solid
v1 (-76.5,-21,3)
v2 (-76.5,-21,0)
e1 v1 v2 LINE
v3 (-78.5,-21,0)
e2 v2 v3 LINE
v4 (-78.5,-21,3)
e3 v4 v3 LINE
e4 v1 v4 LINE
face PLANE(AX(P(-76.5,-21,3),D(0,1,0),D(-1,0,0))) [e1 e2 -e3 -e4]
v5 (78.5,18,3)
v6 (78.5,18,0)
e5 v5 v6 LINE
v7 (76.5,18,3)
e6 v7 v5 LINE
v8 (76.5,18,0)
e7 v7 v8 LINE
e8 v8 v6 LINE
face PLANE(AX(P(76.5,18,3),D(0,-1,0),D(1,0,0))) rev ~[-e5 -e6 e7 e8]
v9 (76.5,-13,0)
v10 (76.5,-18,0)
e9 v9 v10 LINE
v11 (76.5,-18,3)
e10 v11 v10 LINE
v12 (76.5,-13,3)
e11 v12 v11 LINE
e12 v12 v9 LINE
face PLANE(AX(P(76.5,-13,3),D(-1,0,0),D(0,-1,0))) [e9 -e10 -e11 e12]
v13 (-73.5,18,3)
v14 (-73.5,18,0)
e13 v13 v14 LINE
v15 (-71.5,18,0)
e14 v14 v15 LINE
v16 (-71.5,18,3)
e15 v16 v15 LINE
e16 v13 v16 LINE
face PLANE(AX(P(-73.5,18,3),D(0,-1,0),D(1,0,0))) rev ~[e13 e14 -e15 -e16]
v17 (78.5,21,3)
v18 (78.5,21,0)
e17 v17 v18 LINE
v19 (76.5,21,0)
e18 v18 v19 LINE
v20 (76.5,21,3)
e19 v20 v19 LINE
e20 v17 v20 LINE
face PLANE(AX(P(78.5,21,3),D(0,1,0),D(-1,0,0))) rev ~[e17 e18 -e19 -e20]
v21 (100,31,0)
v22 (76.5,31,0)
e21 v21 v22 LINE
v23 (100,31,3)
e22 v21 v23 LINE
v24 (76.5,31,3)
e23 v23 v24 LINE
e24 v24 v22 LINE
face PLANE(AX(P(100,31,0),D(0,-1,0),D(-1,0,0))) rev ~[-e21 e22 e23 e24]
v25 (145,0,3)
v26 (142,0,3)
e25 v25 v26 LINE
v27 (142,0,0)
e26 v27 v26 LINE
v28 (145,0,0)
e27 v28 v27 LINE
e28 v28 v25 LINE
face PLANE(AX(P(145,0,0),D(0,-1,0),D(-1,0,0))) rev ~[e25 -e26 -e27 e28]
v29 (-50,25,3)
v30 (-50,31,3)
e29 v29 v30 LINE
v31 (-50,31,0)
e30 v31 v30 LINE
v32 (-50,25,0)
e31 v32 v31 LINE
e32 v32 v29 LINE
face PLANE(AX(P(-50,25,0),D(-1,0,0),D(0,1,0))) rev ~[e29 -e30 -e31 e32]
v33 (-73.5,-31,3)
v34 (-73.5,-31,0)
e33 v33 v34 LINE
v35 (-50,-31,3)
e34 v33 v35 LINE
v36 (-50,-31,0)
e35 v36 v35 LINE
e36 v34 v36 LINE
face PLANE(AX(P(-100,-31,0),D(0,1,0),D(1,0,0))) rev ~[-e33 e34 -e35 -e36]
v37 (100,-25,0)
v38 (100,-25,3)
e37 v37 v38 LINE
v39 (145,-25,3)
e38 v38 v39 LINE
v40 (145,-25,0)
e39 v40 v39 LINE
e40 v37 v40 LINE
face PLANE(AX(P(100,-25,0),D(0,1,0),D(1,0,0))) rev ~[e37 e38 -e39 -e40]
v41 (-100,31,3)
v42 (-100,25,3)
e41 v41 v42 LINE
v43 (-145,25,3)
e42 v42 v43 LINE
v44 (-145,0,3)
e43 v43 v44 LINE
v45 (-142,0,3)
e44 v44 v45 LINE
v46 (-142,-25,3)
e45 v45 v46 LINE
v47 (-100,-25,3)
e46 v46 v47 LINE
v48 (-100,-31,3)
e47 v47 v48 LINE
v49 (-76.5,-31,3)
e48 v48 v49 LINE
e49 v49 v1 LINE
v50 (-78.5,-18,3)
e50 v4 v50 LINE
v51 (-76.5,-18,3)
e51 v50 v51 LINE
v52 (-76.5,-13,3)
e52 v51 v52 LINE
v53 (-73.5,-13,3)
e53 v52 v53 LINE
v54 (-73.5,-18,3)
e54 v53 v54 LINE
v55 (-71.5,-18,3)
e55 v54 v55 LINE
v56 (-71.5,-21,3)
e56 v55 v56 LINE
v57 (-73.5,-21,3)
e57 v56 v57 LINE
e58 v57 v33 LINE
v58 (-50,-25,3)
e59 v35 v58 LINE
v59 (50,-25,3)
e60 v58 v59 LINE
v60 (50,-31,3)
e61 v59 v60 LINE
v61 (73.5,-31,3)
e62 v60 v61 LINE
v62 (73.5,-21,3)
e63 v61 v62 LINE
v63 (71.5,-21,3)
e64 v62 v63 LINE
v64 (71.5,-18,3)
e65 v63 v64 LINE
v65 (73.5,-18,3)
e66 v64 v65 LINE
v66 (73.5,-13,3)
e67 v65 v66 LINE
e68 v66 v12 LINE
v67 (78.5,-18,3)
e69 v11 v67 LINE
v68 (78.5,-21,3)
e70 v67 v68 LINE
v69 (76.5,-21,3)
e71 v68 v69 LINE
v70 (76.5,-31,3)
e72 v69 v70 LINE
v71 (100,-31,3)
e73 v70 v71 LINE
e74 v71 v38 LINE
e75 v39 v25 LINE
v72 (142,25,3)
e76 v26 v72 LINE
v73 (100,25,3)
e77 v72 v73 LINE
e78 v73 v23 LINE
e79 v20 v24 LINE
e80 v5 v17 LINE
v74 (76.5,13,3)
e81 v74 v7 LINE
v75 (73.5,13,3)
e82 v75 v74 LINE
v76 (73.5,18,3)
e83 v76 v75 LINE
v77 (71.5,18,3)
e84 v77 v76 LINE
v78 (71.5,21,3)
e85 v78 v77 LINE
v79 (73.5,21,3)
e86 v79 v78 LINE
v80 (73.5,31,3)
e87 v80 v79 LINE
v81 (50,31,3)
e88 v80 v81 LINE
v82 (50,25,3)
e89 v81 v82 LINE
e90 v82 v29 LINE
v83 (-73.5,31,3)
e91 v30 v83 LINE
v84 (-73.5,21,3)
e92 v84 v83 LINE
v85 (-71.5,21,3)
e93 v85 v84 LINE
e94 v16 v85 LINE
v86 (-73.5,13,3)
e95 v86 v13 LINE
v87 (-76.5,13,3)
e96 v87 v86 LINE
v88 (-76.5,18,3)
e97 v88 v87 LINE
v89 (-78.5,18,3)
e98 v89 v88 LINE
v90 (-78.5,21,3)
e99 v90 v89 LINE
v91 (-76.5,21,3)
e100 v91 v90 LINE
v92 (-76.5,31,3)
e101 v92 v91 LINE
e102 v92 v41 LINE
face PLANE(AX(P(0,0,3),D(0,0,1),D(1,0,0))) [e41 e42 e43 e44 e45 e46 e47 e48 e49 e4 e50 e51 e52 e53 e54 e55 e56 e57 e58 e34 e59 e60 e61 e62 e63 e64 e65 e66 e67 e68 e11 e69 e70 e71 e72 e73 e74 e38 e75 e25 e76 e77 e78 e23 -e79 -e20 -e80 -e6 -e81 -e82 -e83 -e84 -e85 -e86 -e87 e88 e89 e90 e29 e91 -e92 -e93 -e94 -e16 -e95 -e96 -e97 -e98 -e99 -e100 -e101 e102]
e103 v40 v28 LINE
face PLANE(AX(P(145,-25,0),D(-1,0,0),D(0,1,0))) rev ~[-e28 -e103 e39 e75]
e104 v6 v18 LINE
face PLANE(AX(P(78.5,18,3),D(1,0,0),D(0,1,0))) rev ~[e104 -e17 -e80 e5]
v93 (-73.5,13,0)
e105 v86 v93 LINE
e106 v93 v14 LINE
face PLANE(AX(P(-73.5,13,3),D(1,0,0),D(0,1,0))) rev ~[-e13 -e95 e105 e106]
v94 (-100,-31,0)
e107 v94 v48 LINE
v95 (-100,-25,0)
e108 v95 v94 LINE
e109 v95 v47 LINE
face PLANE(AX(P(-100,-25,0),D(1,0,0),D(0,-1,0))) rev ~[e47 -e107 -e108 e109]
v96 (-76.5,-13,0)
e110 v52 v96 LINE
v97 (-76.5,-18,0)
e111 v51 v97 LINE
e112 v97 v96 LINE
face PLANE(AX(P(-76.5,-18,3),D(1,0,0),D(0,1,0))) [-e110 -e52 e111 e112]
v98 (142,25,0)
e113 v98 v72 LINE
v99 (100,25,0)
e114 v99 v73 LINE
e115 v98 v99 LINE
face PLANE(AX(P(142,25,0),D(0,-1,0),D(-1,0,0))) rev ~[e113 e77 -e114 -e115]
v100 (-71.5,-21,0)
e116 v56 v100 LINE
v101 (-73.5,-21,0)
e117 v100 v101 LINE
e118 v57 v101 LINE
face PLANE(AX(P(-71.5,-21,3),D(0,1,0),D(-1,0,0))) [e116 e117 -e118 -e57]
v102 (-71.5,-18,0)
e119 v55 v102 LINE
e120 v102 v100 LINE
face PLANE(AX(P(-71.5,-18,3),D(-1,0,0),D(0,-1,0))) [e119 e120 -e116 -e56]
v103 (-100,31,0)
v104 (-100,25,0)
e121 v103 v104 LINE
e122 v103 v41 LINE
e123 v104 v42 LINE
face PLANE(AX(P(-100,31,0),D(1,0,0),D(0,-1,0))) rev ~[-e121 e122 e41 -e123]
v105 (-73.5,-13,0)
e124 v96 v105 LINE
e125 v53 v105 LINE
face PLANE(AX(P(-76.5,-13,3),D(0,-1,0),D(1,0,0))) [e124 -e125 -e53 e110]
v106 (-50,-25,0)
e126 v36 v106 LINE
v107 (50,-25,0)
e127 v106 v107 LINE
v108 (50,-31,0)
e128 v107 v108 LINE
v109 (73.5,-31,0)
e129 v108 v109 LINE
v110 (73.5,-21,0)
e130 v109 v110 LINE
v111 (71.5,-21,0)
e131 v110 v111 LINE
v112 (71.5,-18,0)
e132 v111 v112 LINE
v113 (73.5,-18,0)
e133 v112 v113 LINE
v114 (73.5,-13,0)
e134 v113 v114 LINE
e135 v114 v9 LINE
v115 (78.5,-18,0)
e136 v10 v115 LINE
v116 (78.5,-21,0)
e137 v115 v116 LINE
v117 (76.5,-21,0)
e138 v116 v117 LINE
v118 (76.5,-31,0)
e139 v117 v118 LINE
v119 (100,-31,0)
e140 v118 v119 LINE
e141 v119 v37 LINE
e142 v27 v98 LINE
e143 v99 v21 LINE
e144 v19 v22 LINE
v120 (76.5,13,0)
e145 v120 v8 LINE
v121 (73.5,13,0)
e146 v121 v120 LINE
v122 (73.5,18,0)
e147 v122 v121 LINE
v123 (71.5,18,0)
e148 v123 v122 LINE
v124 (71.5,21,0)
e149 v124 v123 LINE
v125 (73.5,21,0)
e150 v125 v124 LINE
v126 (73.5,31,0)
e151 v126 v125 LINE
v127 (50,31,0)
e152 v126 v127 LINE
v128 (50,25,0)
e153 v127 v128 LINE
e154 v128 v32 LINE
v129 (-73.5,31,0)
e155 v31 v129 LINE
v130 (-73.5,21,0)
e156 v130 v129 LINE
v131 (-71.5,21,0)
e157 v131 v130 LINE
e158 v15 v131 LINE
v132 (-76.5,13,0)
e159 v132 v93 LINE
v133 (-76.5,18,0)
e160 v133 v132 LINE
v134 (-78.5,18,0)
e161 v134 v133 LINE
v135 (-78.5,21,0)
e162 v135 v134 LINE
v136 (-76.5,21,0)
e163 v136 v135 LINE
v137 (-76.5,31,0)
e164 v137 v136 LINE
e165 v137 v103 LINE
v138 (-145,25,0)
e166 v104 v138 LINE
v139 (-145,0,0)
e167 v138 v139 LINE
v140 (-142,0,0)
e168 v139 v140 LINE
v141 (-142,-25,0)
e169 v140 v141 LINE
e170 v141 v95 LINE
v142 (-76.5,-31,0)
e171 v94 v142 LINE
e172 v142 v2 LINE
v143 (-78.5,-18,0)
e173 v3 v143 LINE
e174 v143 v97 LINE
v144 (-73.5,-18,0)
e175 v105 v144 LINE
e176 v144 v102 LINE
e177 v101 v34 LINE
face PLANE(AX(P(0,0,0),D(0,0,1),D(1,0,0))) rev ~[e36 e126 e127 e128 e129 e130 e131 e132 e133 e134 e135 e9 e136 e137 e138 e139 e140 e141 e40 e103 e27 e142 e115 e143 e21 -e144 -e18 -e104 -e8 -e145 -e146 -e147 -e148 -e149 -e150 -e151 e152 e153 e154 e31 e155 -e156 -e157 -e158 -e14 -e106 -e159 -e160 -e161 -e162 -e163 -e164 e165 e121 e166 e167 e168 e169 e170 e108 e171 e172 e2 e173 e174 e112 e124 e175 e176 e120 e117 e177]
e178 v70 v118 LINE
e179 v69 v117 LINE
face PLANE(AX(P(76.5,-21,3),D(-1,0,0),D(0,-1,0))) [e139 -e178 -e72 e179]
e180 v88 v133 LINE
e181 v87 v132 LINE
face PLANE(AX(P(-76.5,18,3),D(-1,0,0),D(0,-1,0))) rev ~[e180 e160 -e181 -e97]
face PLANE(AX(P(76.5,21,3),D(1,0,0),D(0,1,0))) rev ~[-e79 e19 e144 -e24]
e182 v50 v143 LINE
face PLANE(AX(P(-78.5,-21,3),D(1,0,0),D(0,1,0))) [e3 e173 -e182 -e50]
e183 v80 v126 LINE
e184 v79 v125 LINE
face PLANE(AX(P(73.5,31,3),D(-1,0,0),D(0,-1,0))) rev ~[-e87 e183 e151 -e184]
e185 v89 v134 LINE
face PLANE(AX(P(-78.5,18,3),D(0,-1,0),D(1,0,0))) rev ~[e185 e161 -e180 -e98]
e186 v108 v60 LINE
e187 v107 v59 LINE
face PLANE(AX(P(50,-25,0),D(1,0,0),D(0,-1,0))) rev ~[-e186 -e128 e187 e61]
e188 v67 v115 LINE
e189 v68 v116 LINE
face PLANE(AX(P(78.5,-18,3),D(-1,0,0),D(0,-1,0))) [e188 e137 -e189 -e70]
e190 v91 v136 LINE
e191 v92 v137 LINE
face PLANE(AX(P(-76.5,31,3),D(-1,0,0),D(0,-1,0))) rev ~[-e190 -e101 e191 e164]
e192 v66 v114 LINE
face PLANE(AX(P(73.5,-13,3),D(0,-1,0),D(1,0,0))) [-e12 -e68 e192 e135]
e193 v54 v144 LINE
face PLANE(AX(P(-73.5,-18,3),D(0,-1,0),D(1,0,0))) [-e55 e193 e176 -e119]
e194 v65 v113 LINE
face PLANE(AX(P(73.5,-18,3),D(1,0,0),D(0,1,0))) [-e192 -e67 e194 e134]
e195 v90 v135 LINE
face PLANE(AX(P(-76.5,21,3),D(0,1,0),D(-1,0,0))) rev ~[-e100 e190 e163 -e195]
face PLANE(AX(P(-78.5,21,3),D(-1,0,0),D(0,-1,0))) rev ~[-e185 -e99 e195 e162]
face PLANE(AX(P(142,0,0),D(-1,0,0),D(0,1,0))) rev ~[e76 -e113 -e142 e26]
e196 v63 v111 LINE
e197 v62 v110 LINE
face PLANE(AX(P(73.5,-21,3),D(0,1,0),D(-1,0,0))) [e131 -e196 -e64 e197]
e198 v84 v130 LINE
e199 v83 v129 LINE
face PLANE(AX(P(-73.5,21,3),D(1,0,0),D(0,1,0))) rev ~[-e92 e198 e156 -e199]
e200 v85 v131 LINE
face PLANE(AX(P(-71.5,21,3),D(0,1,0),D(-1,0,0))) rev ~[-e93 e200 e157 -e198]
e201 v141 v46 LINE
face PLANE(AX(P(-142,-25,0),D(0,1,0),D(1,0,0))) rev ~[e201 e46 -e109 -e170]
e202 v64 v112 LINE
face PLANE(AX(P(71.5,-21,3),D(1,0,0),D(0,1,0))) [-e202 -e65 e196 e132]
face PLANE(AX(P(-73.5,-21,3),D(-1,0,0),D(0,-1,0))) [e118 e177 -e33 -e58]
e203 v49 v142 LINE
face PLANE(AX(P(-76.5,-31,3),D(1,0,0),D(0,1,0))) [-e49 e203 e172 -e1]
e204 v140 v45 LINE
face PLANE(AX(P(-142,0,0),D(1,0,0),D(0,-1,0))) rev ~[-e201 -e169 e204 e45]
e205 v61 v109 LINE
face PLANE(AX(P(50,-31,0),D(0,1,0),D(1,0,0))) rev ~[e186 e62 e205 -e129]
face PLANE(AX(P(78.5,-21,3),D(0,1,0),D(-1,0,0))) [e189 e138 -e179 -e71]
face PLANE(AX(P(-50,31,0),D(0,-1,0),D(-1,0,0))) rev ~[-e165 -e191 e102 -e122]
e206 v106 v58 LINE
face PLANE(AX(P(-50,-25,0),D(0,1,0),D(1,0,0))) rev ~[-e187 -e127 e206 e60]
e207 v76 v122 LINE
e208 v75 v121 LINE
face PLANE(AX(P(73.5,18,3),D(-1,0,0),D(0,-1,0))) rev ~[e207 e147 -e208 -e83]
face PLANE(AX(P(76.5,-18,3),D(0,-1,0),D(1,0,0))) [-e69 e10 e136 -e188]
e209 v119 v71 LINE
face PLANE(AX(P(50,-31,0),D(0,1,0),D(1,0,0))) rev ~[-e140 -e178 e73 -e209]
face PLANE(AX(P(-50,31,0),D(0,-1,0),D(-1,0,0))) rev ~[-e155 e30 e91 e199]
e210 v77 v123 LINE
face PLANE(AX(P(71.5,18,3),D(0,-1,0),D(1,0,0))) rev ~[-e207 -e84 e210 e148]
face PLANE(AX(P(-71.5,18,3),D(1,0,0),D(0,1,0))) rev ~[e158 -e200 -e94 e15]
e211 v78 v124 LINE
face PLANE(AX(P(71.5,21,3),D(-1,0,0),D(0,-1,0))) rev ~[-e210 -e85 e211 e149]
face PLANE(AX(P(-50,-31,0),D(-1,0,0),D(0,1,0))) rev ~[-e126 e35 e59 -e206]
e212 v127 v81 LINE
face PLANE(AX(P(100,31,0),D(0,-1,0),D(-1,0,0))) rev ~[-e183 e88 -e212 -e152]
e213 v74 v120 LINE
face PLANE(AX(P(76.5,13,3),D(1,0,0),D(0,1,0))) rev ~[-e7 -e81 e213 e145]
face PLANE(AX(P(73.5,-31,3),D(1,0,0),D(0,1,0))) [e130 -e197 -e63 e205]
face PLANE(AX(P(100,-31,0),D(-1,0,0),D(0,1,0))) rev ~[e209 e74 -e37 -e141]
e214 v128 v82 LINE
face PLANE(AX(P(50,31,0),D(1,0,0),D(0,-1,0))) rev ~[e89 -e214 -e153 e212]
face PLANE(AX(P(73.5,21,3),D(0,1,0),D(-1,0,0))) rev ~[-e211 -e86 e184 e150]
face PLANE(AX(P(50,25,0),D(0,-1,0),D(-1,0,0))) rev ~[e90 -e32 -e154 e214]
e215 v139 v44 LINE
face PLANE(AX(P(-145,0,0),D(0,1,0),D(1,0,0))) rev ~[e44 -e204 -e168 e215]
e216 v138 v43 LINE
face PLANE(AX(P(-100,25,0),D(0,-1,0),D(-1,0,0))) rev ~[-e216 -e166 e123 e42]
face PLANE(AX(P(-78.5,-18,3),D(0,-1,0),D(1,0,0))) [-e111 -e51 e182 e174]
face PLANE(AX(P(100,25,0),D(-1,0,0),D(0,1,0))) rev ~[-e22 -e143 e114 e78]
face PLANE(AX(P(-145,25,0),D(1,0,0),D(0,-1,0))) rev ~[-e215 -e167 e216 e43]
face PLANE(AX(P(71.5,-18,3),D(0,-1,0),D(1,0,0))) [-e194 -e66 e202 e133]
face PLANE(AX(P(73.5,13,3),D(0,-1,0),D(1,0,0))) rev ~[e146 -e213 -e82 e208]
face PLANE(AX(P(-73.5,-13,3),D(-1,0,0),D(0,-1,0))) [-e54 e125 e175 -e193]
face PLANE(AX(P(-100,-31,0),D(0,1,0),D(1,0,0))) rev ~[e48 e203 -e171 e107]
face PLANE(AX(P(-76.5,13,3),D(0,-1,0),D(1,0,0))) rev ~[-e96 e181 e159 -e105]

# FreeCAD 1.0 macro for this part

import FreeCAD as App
import Part
import Sketcher

V = App.Vector
Q = App.Units.Quantity


def add_polygon(sketch, points):
    """Adds a closed chain of lines whose ends are joined by coincident constraints."""
    first, n = sketch.GeometryCount, len(points)
    for a, b in zip(points, points[1:] + points[:1]):
        sketch.addGeometry(Part.LineSegment(App.Vector(*a, 0), App.Vector(*b, 0)), False)
    for i in range(n):
        sketch.addConstraint(Sketcher.Constraint("Coincident", first + i, 2, first + (i + 1) % n, 1))

doc = App.newDocument("Part")
params = doc.addObject("Spreadsheet::Sheet", "Params")
for row, (alias, value) in enumerate([
    ("sketch1_width", "3 mm"),
    ("sketch1_width2", "42 mm"),
    ("sketch1_width3", "50 mm"),
    ("sketch1_width4", "100 mm"),
    ("sketch1_height", "25 mm"),
    ("pad1_length", "3 mm"),
    ("sketch2_width", "2 mm"),
    ("sketch2_width2", "3 mm"),
    ("sketch2_height", "10 mm"),
    ("sketch2_height2", "5 mm"),
    ("pocket1_length", "10 mm"),
], start=1):
    params.set(f"A{row}", alias)
    params.set(f"B{row}", "=" + value)
    params.setAlias(f"B{row}", alias)

body = doc.addObject("PartDesign::Body", "Body")

sketch1 = body.newObject("Sketcher::SketchObject", "Sketch")
sketch1.AttachmentSupport = (doc.getObject("XY_Plane"), [""])
sketch1.MapMode = "FlatFace"
add_polygon(sketch1, [(-145, 0), (-142, 0), (-142, -25), (-100, -25), (-100, -31), (-50, -31), (-50, -25), (50, -25), (50, -31), (100, -31), (100, -25), (145, -25), (145, 0), (142, 0), (142, 25), (100, 25), (100, 31), (50, 31), (50, 25), (-50, 25), (-50, 31), (-100, 31), (-100, 25), (-145, 25)])
sketch1.addConstraint([
    Sketcher.Constraint("Horizontal", 0),
    Sketcher.Constraint("Vertical", 1),
    Sketcher.Constraint("Horizontal", 2),
    Sketcher.Constraint("Vertical", 3),
    Sketcher.Constraint("Horizontal", 4),
    Sketcher.Constraint("Vertical", 5),
    Sketcher.Constraint("Horizontal", 6),
    Sketcher.Constraint("Vertical", 7),
    Sketcher.Constraint("Horizontal", 8),
    Sketcher.Constraint("Vertical", 9),
    Sketcher.Constraint("Horizontal", 10),
    Sketcher.Constraint("Vertical", 11),
    Sketcher.Constraint("Horizontal", 12),
    Sketcher.Constraint("Vertical", 13),
    Sketcher.Constraint("Horizontal", 14),
    Sketcher.Constraint("Vertical", 15),
    Sketcher.Constraint("Horizontal", 16),
    Sketcher.Constraint("Vertical", 17),
    Sketcher.Constraint("Horizontal", 18),
    Sketcher.Constraint("Vertical", 19),
    Sketcher.Constraint("Horizontal", 20),
    Sketcher.Constraint("Vertical", 21),
    Sketcher.Constraint("Horizontal", 22),
    Sketcher.Constraint("Vertical", 23),
    Sketcher.Constraint("Symmetric", 0, 2, 12, 2, -1, 1),
    Sketcher.Constraint("Symmetric", 2, 2, 14, 2, -1, 1),
    Sketcher.Constraint("Symmetric", 4, 2, 16, 2, -1, 1),
    Sketcher.Constraint("Symmetric", 6, 2, 18, 2, -1, 1),
    Sketcher.Constraint("Symmetric", 8, 2, 20, 2, -1, 1),
    Sketcher.Constraint("Symmetric", 10, 2, 22, 2, -1, 1),
    Sketcher.Constraint("Symmetric", 4, 2, 7, 2, -2),
    Sketcher.Constraint("Symmetric", 2, 2, 9, 2, -2),
    Sketcher.Constraint("PointOnObject", 0, 2, -1),
    Sketcher.Constraint("Horizontal", 2, 2, 5, 2),
    Sketcher.Constraint("DistanceX", 0, 1, 0, 2, Q("3 mm")),
    Sketcher.Constraint("DistanceX", 2, 1, 2, 2, Q("42 mm")),
    Sketcher.Constraint("DistanceX", 4, 1, 4, 2, Q("50 mm")),
    Sketcher.Constraint("DistanceX", 6, 1, 6, 2, Q("100 mm")),
    Sketcher.Constraint("DistanceY", 1, 2, 1, 1, Q("25 mm")),
    Sketcher.Constraint("DistanceY", 3, 2, 3, 1, Q("6 mm")),
])
sketch1.setExpression("Constraints[58]", "Params.sketch1_width")
sketch1.setExpression("Constraints[59]", "Params.sketch1_width2")
sketch1.setExpression("Constraints[60]", "Params.sketch1_width3")
sketch1.setExpression("Constraints[61]", "Params.sketch1_width4")
sketch1.setExpression("Constraints[62]", "Params.sketch1_height")
pad1 = body.newObject("PartDesign::Pad", "Pad")
pad1.Profile = sketch1
pad1.setExpression("Length", "Params.pad1_length")

sketch2 = body.newObject("Sketcher::SketchObject", "Sketch001")
sketch2.AttachmentSupport = (doc.getObject("XY_Plane"), [""])
sketch2.MapMode = "FlatFace"
sketch2.AttachmentOffset = App.Placement(V(0, 0, 3), App.Rotation())
add_polygon(sketch2, [(-76.5, 31), (-76.5, 21), (-78.5, 21), (-78.5, 18), (-76.5, 18), (-76.5, 13), (-73.5, 13), (-73.5, 18), (-71.5, 18), (-71.5, 21), (-73.5, 21), (-73.5, 31)])
add_polygon(sketch2, [(-76.5, -21), (-76.5, -31), (-73.5, -31), (-73.5, -21), (-71.5, -21), (-71.5, -18), (-73.5, -18), (-73.5, -13), (-76.5, -13), (-76.5, -18), (-78.5, -18), (-78.5, -21)])
add_polygon(sketch2, [(73.5, 31), (73.5, 21), (71.5, 21), (71.5, 18), (73.5, 18), (73.5, 13), (76.5, 13), (76.5, 18), (78.5, 18), (78.5, 21), (76.5, 21), (76.5, 31)])
add_polygon(sketch2, [(73.5, -21), (73.5, -31), (76.5, -31), (76.5, -21), (78.5, -21), (78.5, -18), (76.5, -18), (76.5, -13), (73.5, -13), (73.5, -18), (71.5, -18), (71.5, -21)])
sketch2.addConstraint([
    Sketcher.Constraint("Vertical", 0),
    Sketcher.Constraint("Horizontal", 1),
    Sketcher.Constraint("Vertical", 2),
    Sketcher.Constraint("Horizontal", 3),
    Sketcher.Constraint("Vertical", 4),
    Sketcher.Constraint("Horizontal", 5),
    Sketcher.Constraint("Vertical", 6),
    Sketcher.Constraint("Horizontal", 7),
    Sketcher.Constraint("Vertical", 8),
    Sketcher.Constraint("Horizontal", 9),
    Sketcher.Constraint("Vertical", 10),
    Sketcher.Constraint("Horizontal", 11),
    Sketcher.Constraint("Vertical", 12),
    Sketcher.Constraint("Horizontal", 13),
    Sketcher.Constraint("Vertical", 14),
    Sketcher.Constraint("Horizontal", 15),
    Sketcher.Constraint("Vertical", 16),
    Sketcher.Constraint("Horizontal", 17),
    Sketcher.Constraint("Vertical", 18),
    Sketcher.Constraint("Horizontal", 19),
    Sketcher.Constraint("Vertical", 20),
    Sketcher.Constraint("Horizontal", 21),
    Sketcher.Constraint("Vertical", 22),
    Sketcher.Constraint("Horizontal", 23),
    Sketcher.Constraint("Vertical", 24),
    Sketcher.Constraint("Horizontal", 25),
    Sketcher.Constraint("Vertical", 26),
    Sketcher.Constraint("Horizontal", 27),
    Sketcher.Constraint("Vertical", 28),
    Sketcher.Constraint("Horizontal", 29),
    Sketcher.Constraint("Vertical", 30),
    Sketcher.Constraint("Horizontal", 31),
    Sketcher.Constraint("Vertical", 32),
    Sketcher.Constraint("Horizontal", 33),
    Sketcher.Constraint("Vertical", 34),
    Sketcher.Constraint("Horizontal", 35),
    Sketcher.Constraint("Vertical", 36),
    Sketcher.Constraint("Horizontal", 37),
    Sketcher.Constraint("Vertical", 38),
    Sketcher.Constraint("Horizontal", 39),
    Sketcher.Constraint("Vertical", 40),
    Sketcher.Constraint("Horizontal", 41),
    Sketcher.Constraint("Vertical", 42),
    Sketcher.Constraint("Horizontal", 43),
    Sketcher.Constraint("Vertical", 44),
    Sketcher.Constraint("Horizontal", 45),
    Sketcher.Constraint("Vertical", 46),
    Sketcher.Constraint("Horizontal", 47),
    Sketcher.Constraint("Symmetric", 14, 2, 24, 2, -1, 1),
    Sketcher.Constraint("Symmetric", 16, 2, 26, 2, -1, 1),
    Sketcher.Constraint("Symmetric", 18, 2, 28, 2, -1, 1),
    Sketcher.Constraint("Symmetric", 20, 2, 30, 2, -1, 1),
    Sketcher.Constraint("Symmetric", 22, 2, 32, 2, -1, 1),
    Sketcher.Constraint("Symmetric", 12, 2, 34, 2, -1, 1),
    Sketcher.Constraint("Symmetric", 10, 2, 36, 2, -1, 1),
    Sketcher.Constraint("Symmetric", 0, 2, 38, 2, -1, 1),
    Sketcher.Constraint("Symmetric", 2, 2, 40, 2, -1, 1),
    Sketcher.Constraint("Symmetric", 4, 2, 42, 2, -1, 1),
    Sketcher.Constraint("Symmetric", 6, 2, 44, 2, -1, 1),
    Sketcher.Constraint("Symmetric", 8, 2, 46, 2, -1, 1),
    Sketcher.Constraint("Symmetric", 9, 2, 24, 2, -2),
    Sketcher.Constraint("Symmetric", 7, 2, 26, 2, -2),
    Sketcher.Constraint("Symmetric", 5, 2, 28, 2, -2),
    Sketcher.Constraint("Symmetric", 3, 2, 30, 2, -2),
    Sketcher.Constraint("Symmetric", 1, 2, 32, 2, -2),
    Sketcher.Constraint("Symmetric", 11, 2, 34, 2, -2),
    Sketcher.Constraint("Horizontal", 3, 2, 6, 2),
    Sketcher.Constraint("Horizontal", 1, 2, 8, 2),
    Sketcher.Constraint("Vertical", 0, 2, 3, 2),
    Sketcher.Constraint("Vertical", 6, 2, 9, 2),
    Sketcher.Constraint("Equal", 3, 7),
    Sketcher.Constraint("Equal", 43, 2),
    Sketcher.Constraint("DistanceX", 1, 2, 1, 1, Q("2 mm")),
    Sketcher.Constraint("DistanceX", 5, 1, 5, 2, Q("3 mm")),
    Sketcher.Constraint("DistanceY", 0, 2, 0, 1, Q("10 mm")),
    Sketcher.Constraint("DistanceY", 4, 2, 4, 1, Q("5 mm")),
    Sketcher.Constraint("DistanceY", -1, 1, 0, 2, Q("21 mm")),
    Sketcher.Constraint("DistanceX", 8, 2, 24, 2, Q("145 mm")),
])
sketch2.setExpression("Constraints[120]", "Params.sketch2_width")
sketch2.setExpression("Constraints[121]", "Params.sketch2_width2")
sketch2.setExpression("Constraints[122]", "Params.sketch2_height")
sketch2.setExpression("Constraints[123]", "Params.sketch2_height2")
pocket1 = body.newObject("PartDesign::Pocket", "Pocket")
pocket1.Profile = sketch2
pocket1.setExpression("Length", "Params.pocket1_length")

doc.recompute()
